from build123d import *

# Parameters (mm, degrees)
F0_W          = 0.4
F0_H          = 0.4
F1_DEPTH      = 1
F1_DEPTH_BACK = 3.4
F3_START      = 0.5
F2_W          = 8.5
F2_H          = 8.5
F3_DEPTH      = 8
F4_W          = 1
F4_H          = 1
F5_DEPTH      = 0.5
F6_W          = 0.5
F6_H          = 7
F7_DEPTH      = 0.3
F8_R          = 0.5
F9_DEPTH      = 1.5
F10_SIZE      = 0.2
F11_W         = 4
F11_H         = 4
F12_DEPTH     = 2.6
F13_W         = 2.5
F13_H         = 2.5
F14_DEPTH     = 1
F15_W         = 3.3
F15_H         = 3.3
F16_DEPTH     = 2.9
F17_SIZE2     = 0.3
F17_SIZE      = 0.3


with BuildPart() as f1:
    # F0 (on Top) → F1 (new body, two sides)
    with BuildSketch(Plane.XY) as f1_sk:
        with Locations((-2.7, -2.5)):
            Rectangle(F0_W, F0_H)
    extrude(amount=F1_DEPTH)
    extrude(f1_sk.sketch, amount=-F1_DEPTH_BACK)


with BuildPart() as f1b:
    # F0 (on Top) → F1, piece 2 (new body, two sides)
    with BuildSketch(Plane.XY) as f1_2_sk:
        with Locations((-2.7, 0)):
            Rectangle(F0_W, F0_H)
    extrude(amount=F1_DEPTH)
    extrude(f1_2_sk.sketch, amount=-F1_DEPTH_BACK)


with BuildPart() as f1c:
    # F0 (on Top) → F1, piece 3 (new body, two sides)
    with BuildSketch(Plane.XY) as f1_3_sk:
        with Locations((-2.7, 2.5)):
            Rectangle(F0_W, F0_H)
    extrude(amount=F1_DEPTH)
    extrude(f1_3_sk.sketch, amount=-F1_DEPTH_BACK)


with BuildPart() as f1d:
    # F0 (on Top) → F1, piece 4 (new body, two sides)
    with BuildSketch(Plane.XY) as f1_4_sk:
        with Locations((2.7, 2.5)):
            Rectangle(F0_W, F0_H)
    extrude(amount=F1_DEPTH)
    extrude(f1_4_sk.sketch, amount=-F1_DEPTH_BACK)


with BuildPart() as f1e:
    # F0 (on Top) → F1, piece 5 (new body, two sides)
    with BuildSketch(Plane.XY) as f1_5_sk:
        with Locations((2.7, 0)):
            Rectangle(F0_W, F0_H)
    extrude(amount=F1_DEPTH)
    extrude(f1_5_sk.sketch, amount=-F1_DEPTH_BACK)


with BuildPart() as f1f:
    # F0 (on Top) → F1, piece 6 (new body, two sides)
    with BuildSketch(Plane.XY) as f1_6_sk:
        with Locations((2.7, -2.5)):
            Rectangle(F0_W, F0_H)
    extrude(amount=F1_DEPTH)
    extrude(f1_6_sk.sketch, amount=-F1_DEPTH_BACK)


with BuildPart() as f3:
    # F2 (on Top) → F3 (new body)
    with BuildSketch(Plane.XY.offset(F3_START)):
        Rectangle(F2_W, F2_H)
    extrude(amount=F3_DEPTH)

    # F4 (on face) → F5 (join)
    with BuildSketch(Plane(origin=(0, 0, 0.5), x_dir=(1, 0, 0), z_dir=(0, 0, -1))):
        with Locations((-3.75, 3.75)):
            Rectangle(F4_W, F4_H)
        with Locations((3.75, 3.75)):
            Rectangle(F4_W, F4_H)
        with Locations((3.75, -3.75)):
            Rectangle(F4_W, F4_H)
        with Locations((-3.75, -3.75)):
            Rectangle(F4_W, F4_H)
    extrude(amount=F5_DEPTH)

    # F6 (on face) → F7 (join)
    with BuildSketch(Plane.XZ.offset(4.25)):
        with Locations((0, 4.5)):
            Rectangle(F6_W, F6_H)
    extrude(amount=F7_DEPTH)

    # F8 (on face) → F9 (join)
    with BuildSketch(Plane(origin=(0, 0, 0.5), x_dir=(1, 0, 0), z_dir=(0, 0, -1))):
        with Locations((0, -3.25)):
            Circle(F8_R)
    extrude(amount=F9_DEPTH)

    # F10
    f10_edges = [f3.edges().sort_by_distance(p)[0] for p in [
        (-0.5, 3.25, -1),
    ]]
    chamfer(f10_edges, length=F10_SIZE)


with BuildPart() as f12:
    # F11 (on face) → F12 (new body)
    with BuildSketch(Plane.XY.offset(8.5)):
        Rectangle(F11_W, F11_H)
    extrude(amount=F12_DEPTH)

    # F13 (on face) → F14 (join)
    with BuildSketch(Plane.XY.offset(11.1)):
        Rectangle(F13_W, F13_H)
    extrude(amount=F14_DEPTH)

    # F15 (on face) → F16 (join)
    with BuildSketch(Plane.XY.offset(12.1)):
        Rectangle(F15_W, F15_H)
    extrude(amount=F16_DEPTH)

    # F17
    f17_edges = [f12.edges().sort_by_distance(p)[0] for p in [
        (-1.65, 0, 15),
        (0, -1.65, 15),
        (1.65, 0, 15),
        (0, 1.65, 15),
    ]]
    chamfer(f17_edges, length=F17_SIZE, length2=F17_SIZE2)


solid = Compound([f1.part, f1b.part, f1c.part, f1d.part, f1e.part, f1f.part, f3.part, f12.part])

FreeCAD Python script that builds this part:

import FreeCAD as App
import Part
import Sketcher
from FreeCAD import Vector
Q = App.Units.Quantity


def edges_at(feature, points):
    """Names of the edges that pass closest to the given points."""
    edges = feature.Shape.Edges
    near = lambda p: min(range(len(edges)), key=lambda i: edges[i].distToShape(Part.Vertex(*p))[0])
    return sorted({f"Edge{near(p) + 1}" for p in points})


def add_polygon(sketch, points):
    """Adds a closed chain of lines whose ends are joined by coincident constraints."""
    first, n = sketch.GeometryCount, len(points)
    for a, b in zip(points, points[1:] + points[:1]):
        sketch.addGeometry(Part.LineSegment(App.Vector(*a, 0), App.Vector(*b, 0)), False)
    for i in range(n):
        sketch.addConstraint(Sketcher.Constraint("Coincident", first + i, 2, first + (i + 1) % n, 1))

doc = App.newDocument("Part")
params = doc.addObject("Spreadsheet::Sheet", "Params")
for row, (alias, value) in enumerate([
    ("sketch1_width", "0.4 mm"),
    ("pad1_length", "1 mm"),
    ("pad1_length2", "3.4 mm"),
    ("sketch2_width", "0.4 mm"),
    ("pad2_length", "1 mm"),
    ("pad2_length2", "3.4 mm"),
    ("sketch3_width", "0.4 mm"),
    ("pad3_length", "1 mm"),
    ("pad3_length2", "3.4 mm"),
    ("sketch4_width", "0.4 mm"),
    ("pad4_length", "1 mm"),
    ("pad4_length2", "3.4 mm"),
    ("sketch5_width", "0.4 mm"),
    ("pad5_length", "1 mm"),
    ("pad5_length2", "3.4 mm"),
    ("sketch6_width", "0.4 mm"),
    ("pad6_length", "1 mm"),
    ("pad6_length2", "3.4 mm"),
    ("sketch7_width", "8.5 mm"),
    ("pad7_length", "8 mm"),
    ("sketch8_width", "1 mm"),
    ("pad8_length", "0.5 mm"),
    ("sketch9_height", "7 mm"),
    ("sketch9_width", "0.5 mm"),
    ("pad9_length", "0.3 mm"),
    ("sketch10_diameter", "1 mm"),
    ("pad10_length", "1.5 mm"),
    ("chamfer_size", "0.2 mm"),
    ("sketch11_width", "4 mm"),
    ("pad11_length", "2.6 mm"),
    ("sketch12_width", "2.5 mm"),
    ("pad12_length", "1 mm"),
    ("sketch13_width", "3.3 mm"),
    ("pad13_length", "2.9 mm"),
    ("chamfer2_size", "0.3 mm"),
    ("chamfer2_size2", "0.3 mm"),
], start=1):
    params.set(f"A{row}", alias)
    params.set(f"B{row}", "=" + value)
    params.setAlias(f"B{row}", alias)

body = doc.addObject("PartDesign::Body", "Body")

# Sketch on XY plane
sketch1 = body.newObject("Sketcher::SketchObject", "Sketch")
sketch1.AttachmentSupport = (doc.getObject("XY_Plane"), [""])
sketch1.MapMode = "FlatFace"
add_polygon(sketch1, [(-2.9, -2.3), (-2.9, -2.7), (-2.5, -2.7), (-2.5, -2.3)])  # lines 0-3
sketch1.addConstraint([
    Sketcher.Constraint("Vertical", 0),
    Sketcher.Constraint("Horizontal", 1),
    Sketcher.Constraint("Vertical", 2),
    Sketcher.Constraint("Horizontal", 3),
    Sketcher.Constraint("Equal", 3, 0),
    Sketcher.Constraint("DistanceX", 1, 1, 1, 2, Q("0.4 mm")),
    Sketcher.Constraint("DistanceX", 0, 2, -1, 1, Q("2.9 mm")),
    Sketcher.Constraint("DistanceY", 0, 2, -1, 1, Q("2.7 mm")),
])
sketch1.setExpression("Constraints[9]", "Params.sketch1_width")
pad1 = body.newObject("PartDesign::Pad", "Pad")
pad1.Profile = sketch1
pad1.Type = "TwoLengths"
pad1.setExpression("Length", "Params.pad1_length")
pad1.setExpression("Length2", "Params.pad1_length2")
body2 = doc.addObject("PartDesign::Body", "Body001")

# Sketch on XY plane
sketch2 = body2.newObject("Sketcher::SketchObject", "Sketch001")
sketch2.AttachmentSupport = (doc.getObject("XY_Plane001"), [""])
sketch2.MapMode = "FlatFace"
add_polygon(sketch2, [(-2.9, 0.2), (-2.9, -0.2), (-2.5, -0.2), (-2.5, 0.2)])  # lines 0-3
sketch2.addConstraint([
    Sketcher.Constraint("Vertical", 0),
    Sketcher.Constraint("Horizontal", 1),
    Sketcher.Constraint("Vertical", 2),
    Sketcher.Constraint("Horizontal", 3),
    Sketcher.Constraint("Equal", 3, 0),
    Sketcher.Constraint("DistanceX", 1, 1, 1, 2, Q("0.4 mm")),
    Sketcher.Constraint("DistanceX", 0, 2, -1, 1, Q("2.9 mm")),
    Sketcher.Constraint("DistanceY", 0, 2, -1, 1, Q("0.2 mm")),
])
sketch2.setExpression("Constraints[9]", "Params.sketch2_width")
pad2 = body2.newObject("PartDesign::Pad", "Pad001")
pad2.Profile = sketch2
pad2.Type = "TwoLengths"
pad2.setExpression("Length", "Params.pad2_length")
pad2.setExpression("Length2", "Params.pad2_length2")
body3 = doc.addObject("PartDesign::Body", "Body002")

# Sketch on XY plane
sketch3 = body3.newObject("Sketcher::SketchObject", "Sketch002")
sketch3.AttachmentSupport = (doc.getObject("XY_Plane002"), [""])
sketch3.MapMode = "FlatFace"
add_polygon(sketch3, [(-2.9, 2.7), (-2.9, 2.3), (-2.5, 2.3), (-2.5, 2.7)])  # lines 0-3
sketch3.addConstraint([
    Sketcher.Constraint("Vertical", 0),
    Sketcher.Constraint("Horizontal", 1),
    Sketcher.Constraint("Vertical", 2),
    Sketcher.Constraint("Horizontal", 3),
    Sketcher.Constraint("Equal", 3, 0),
    Sketcher.Constraint("DistanceX", 1, 1, 1, 2, Q("0.4 mm")),
    Sketcher.Constraint("DistanceX", 0, 2, -1, 1, Q("2.9 mm")),
    Sketcher.Constraint("DistanceY", -1, 1, 0, 2, Q("2.3 mm")),
])
sketch3.setExpression("Constraints[9]", "Params.sketch3_width")
pad3 = body3.newObject("PartDesign::Pad", "Pad002")
pad3.Profile = sketch3
pad3.Type = "TwoLengths"
pad3.setExpression("Length", "Params.pad3_length")
pad3.setExpression("Length2", "Params.pad3_length2")
body4 = doc.addObject("PartDesign::Body", "Body003")

# Sketch on XY plane
sketch4 = body4.newObject("Sketcher::SketchObject", "Sketch003")
sketch4.AttachmentSupport = (doc.getObject("XY_Plane003"), [""])
sketch4.MapMode = "FlatFace"
add_polygon(sketch4, [(2.5, 2.7), (2.5, 2.3), (2.9, 2.3), (2.9, 2.7)])  # lines 0-3
sketch4.addConstraint([
    Sketcher.Constraint("Vertical", 0),
    Sketcher.Constraint("Horizontal", 1),
    Sketcher.Constraint("Vertical", 2),
    Sketcher.Constraint("Horizontal", 3),
    Sketcher.Constraint("Equal", 3, 0),
    Sketcher.Constraint("DistanceX", 1, 1, 1, 2, Q("0.4 mm")),
    Sketcher.Constraint("DistanceX", -1, 1, 0, 2, Q("2.5 mm")),
    Sketcher.Constraint("DistanceY", -1, 1, 0, 2, Q("2.3 mm")),
])
sketch4.setExpression("Constraints[9]", "Params.sketch4_width")
pad4 = body4.newObject("PartDesign::Pad", "Pad003")
pad4.Profile = sketch4
pad4.Type = "TwoLengths"
pad4.setExpression("Length", "Params.pad4_length")
pad4.setExpression("Length2", "Params.pad4_length2")
body5 = doc.addObject("PartDesign::Body", "Body004")

# Sketch on XY plane
sketch5 = body5.newObject("Sketcher::SketchObject", "Sketch004")
sketch5.AttachmentSupport = (doc.getObject("XY_Plane004"), [""])
sketch5.MapMode = "FlatFace"
add_polygon(sketch5, [(2.5, 0.2), (2.5, -0.2), (2.9, -0.2), (2.9, 0.2)])  # lines 0-3
sketch5.addConstraint([
    Sketcher.Constraint("Vertical", 0),
    Sketcher.Constraint("Horizontal", 1),
    Sketcher.Constraint("Vertical", 2),
    Sketcher.Constraint("Horizontal", 3),
    Sketcher.Constraint("Equal", 3, 0),
    Sketcher.Constraint("DistanceX", 1, 1, 1, 2, Q("0.4 mm")),
    Sketcher.Constraint("DistanceX", -1, 1, 0, 2, Q("2.5 mm")),
    Sketcher.Constraint("DistanceY", 0, 2, -1, 1, Q("0.2 mm")),
])
sketch5.setExpression("Constraints[9]", "Params.sketch5_width")
pad5 = body5.newObject("PartDesign::Pad", "Pad004")
pad5.Profile = sketch5
pad5.Type = "TwoLengths"
pad5.setExpression("Length", "Params.pad5_length")
pad5.setExpression("Length2", "Params.pad5_length2")
body6 = doc.addObject("PartDesign::Body", "Body005")

# Sketch on XY plane
sketch6 = body6.newObject("Sketcher::SketchObject", "Sketch005")
sketch6.AttachmentSupport = (doc.getObject("XY_Plane005"), [""])
sketch6.MapMode = "FlatFace"
add_polygon(sketch6, [(2.5, -2.3), (2.5, -2.7), (2.9, -2.7), (2.9, -2.3)])  # lines 0-3
sketch6.addConstraint([
    Sketcher.Constraint("Vertical", 0),
    Sketcher.Constraint("Horizontal", 1),
    Sketcher.Constraint("Vertical", 2),
    Sketcher.Constraint("Horizontal", 3),
    Sketcher.Constraint("Equal", 3, 0),
    Sketcher.Constraint("DistanceX", 1, 1, 1, 2, Q("0.4 mm")),
    Sketcher.Constraint("DistanceX", -1, 1, 0, 2, Q("2.5 mm")),
    Sketcher.Constraint("DistanceY", 0, 2, -1, 1, Q("2.7 mm")),
])
sketch6.setExpression("Constraints[9]", "Params.sketch6_width")
pad6 = body6.newObject("PartDesign::Pad", "Pad005")
pad6.Profile = sketch6
pad6.Type = "TwoLengths"
pad6.setExpression("Length", "Params.pad6_length")
pad6.setExpression("Length2", "Params.pad6_length2")
body7 = doc.addObject("PartDesign::Body", "Body006")

# Sketch on XY plane
sketch7 = body7.newObject("Sketcher::SketchObject", "Sketch006")
sketch7.AttachmentSupport = (doc.getObject("XY_Plane006"), [""])
sketch7.MapMode = "FlatFace"
sketch7.AttachmentOffset = App.Placement(Vector(0, 0, 0.5), App.Rotation())
add_polygon(sketch7, [(-4, 4), (-4, -4), (4, -4), (4, 4)])  # lines 0-3
sketch7.addConstraint([
    Sketcher.Constraint("Vertical", 0),
    Sketcher.Constraint("Horizontal", 1),
    Sketcher.Constraint("Vertical", 2),
    Sketcher.Constraint("Horizontal", 3),
    Sketcher.Constraint("Symmetric", 0, 2, 2, 2, -1, 1),
    Sketcher.Constraint("Equal", 3, 0),
    Sketcher.Constraint("DistanceX", 1, 1, 1, 2, Q("8.5 mm")),
])
sketch7.setExpression("Constraints[10]", "Params.sketch7_width")
pad7 = body7.newObject("PartDesign::Pad", "Pad006")
pad7.Profile = sketch7
pad7.setExpression("Length", "Params.pad7_length")

# Sketch on XY plane
sketch8 = body7.newObject("Sketcher::SketchObject", "Sketch007")
sketch8.AttachmentSupport = (doc.getObject("XY_Plane006"), [""])
sketch8.MapMode = "FlatFace"
sketch8.AttachmentOffset = App.Placement(Vector(0, 0, 0.5), App.Rotation())
add_polygon(sketch8, [(-4.2, -4.2), (-4.2, -3.2), (-3.2, -3.2), (-3.2, -4.2)])  # lines 0-3
add_polygon(sketch8, [(3.2, -4.2), (3.2, -3.2), (4.2, -3.2), (4.2, -4.2)])  # lines 4-7
add_polygon(sketch8, [(3.2, 3.2), (3.2, 4.2), (4.2, 4.2), (4.2, 3.2)])  # lines 8-11
add_polygon(sketch8, [(-4.2, 3.2), (-4.2, 4.2), (-3.2, 4.2), (-3.2, 3.2)])  # lines 12-15
sketch8.addConstraint([
    Sketcher.Constraint("Vertical", 0),
    Sketcher.Constraint("Horizontal", 1),
    Sketcher.Constraint("Vertical", 2),
    Sketcher.Constraint("Horizontal", 3),
    Sketcher.Constraint("Vertical", 4),
    Sketcher.Constraint("Horizontal", 5),
    Sketcher.Constraint("Vertical", 6),
    Sketcher.Constraint("Horizontal", 7),
    Sketcher.Constraint("Vertical", 8),
    Sketcher.Constraint("Horizontal", 9),
    Sketcher.Constraint("Vertical", 10),
    Sketcher.Constraint("Horizontal", 11),
    Sketcher.Constraint("Vertical", 12),
    Sketcher.Constraint("Horizontal", 13),
    Sketcher.Constraint("Vertical", 14),
    Sketcher.Constraint("Horizontal", 15),
    Sketcher.Constraint("Symmetric", 2, 2, 8, 2, -1, 1),
    Sketcher.Constraint("Symmetric", 0, 2, 10, 2, -1, 1),
    Sketcher.Constraint("Symmetric", 6, 2, 12, 2, -1, 1),
    Sketcher.Constraint("Symmetric", 4, 2, 14, 2, -1, 1),
    Sketcher.Constraint("Symmetric", 1, 2, 4, 2, -2),
    Sketcher.Constraint("Symmetric", 3, 2, 6, 2, -2),
    Sketcher.Constraint("Equal", 15, 0),
    Sketcher.Constraint("DistanceX", 1, 1, 1, 2, Q("1 mm")),
    Sketcher.Constraint("DistanceX", 1, 2, 4, 2, Q("6.5 mm")),
    Sketcher.Constraint("DistanceY", 4, 2, 8, 2, Q("7.5 mm")),
])
sketch8.setExpression("Constraints[39]", "Params.sketch8_width")
pad8 = body7.newObject("PartDesign::Pad", "Pad007")
pad8.Profile = sketch8
pad8.setExpression("Length", "Params.pad8_length")
pad8.Reversed = True

# Sketch on XZ plane
sketch9 = body7.newObject("Sketcher::SketchObject", "Sketch008")
sketch9.AttachmentSupport = (doc.getObject("XZ_Plane006"), [""])
sketch9.MapMode = "FlatFace"
sketch9.AttachmentOffset = App.Placement(Vector(0, 0, 4.25), App.Rotation())
add_polygon(sketch9, [(-0.2, 8), (-0.2, 1), (0.2, 1), (0.2, 8)])  # lines 0-3
sketch9.addConstraint([
    Sketcher.Constraint("Vertical", 0),
    Sketcher.Constraint("Horizontal", 1),
    Sketcher.Constraint("Vertical", 2),
    Sketcher.Constraint("Horizontal", 3),
    Sketcher.Constraint("DistanceY", 0, 2, 0, 1, Q("7 mm")),
    Sketcher.Constraint("DistanceX", 1, 1, 1, 2, Q("0.5 mm")),
    Sketcher.Constraint("DistanceY", -1, 1, 0, 2, Q("1 mm")),
    Sketcher.Constraint("DistanceX", 0, 2, -1, 1, Q("0.25 mm")),
])
sketch9.setExpression("Constraints[8]", "Params.sketch9_height")
sketch9.setExpression("Constraints[9]", "Params.sketch9_width")
pad9 = body7.newObject("PartDesign::Pad", "Pad008")
pad9.Profile = sketch9
pad9.setExpression("Length", "Params.pad9_length")

# Sketch on XY plane
sketch10 = body7.newObject("Sketcher::SketchObject", "Sketch009")
sketch10.AttachmentSupport = (doc.getObject("XY_Plane006"), [""])
sketch10.MapMode = "FlatFace"
sketch10.AttachmentOffset = App.Placement(Vector(0, 0, 0.5), App.Rotation())
sketch10.addGeometry(Part.Circle(Vector(0, 3.2, 0), Vector(0, 0, 1), 0.5), False)
sketch10.addConstraint([
    Sketcher.Constraint("PointOnObject", 0, 3, -2),
    Sketcher.Constraint("Diameter", 0, Q("1 mm")),
    Sketcher.Constraint("DistanceY", -1, 1, 0, 3, Q("3.25 mm")),
])
sketch10.setExpression("Constraints[1]", "Params.sketch10_diameter")
pad10 = body7.newObject("PartDesign::Pad", "Pad009")
pad10.Profile = sketch10
pad10.setExpression("Length", "Params.pad10_length")
pad10.Reversed = True
doc.recompute()

chamfer = body7.newObject("PartDesign::Chamfer", "Chamfer")
chamfer.Base = (pad10, edges_at(pad10, [(-0.5, 3.25, -1)]))
chamfer.setExpression("Size", "Params.chamfer_size")
body8 = doc.addObject("PartDesign::Body", "Body007")

# Sketch on XY plane
sketch11 = body8.newObject("Sketcher::SketchObject", "Sketch010")
sketch11.AttachmentSupport = (doc.getObject("XY_Plane007"), [""])
sketch11.MapMode = "FlatFace"
sketch11.AttachmentOffset = App.Placement(Vector(0, 0, 8.5), App.Rotation())
add_polygon(sketch11, [(-2, 2), (-2, -2), (2, -2), (2, 2)])  # lines 0-3
sketch11.addConstraint([
    Sketcher.Constraint("Vertical", 0),
    Sketcher.Constraint("Horizontal", 1),
    Sketcher.Constraint("Vertical", 2),
    Sketcher.Constraint("Horizontal", 3),
    Sketcher.Constraint("Symmetric", 0, 2, 2, 2, -1, 1),
    Sketcher.Constraint("Equal", 3, 0),
    Sketcher.Constraint("DistanceX", 1, 1, 1, 2, Q("4 mm")),
])
sketch11.setExpression("Constraints[10]", "Params.sketch11_width")
pad11 = body8.newObject("PartDesign::Pad", "Pad010")
pad11.Profile = sketch11
pad11.setExpression("Length", "Params.pad11_length")

# Sketch on XY plane
sketch12 = body8.newObject("Sketcher::SketchObject", "Sketch011")
sketch12.AttachmentSupport = (doc.getObject("XY_Plane007"), [""])
sketch12.MapMode = "FlatFace"
sketch12.AttachmentOffset = App.Placement(Vector(0, 0, 11.1), App.Rotation())
add_polygon(sketch12, [(-1.2, 1.2), (-1.2, -1.2), (1.2, -1.2), (1.2, 1.2)])  # lines 0-3
sketch12.addConstraint([
    Sketcher.Constraint("Vertical", 0),
    Sketcher.Constraint("Horizontal", 1),
    Sketcher.Constraint("Vertical", 2),
    Sketcher.Constraint("Horizontal", 3),
    Sketcher.Constraint("Symmetric", 0, 2, 2, 2, -1, 1),
    Sketcher.Constraint("Equal", 3, 0),
    Sketcher.Constraint("DistanceX", 1, 1, 1, 2, Q("2.5 mm")),
])
sketch12.setExpression("Constraints[10]", "Params.sketch12_width")
pad12 = body8.newObject("PartDesign::Pad", "Pad011")
pad12.Profile = sketch12
pad12.setExpression("Length", "Params.pad12_length")

# Sketch on XY plane
sketch13 = body8.newObject("Sketcher::SketchObject", "Sketch012")
sketch13.AttachmentSupport = (doc.getObject("XY_Plane007"), [""])
sketch13.MapMode = "FlatFace"
sketch13.AttachmentOffset = App.Placement(Vector(0, 0, 12.1), App.Rotation())
add_polygon(sketch13, [(-1.6, 1.6), (-1.6, -1.6), (1.6, -1.6), (1.6, 1.6)])  # lines 0-3
sketch13.addConstraint([
    Sketcher.Constraint("Vertical", 0),
    Sketcher.Constraint("Horizontal", 1),
    Sketcher.Constraint("Vertical", 2),
    Sketcher.Constraint("Horizontal", 3),
    Sketcher.Constraint("Symmetric", 0, 2, 2, 2, -1, 1),
    Sketcher.Constraint("Equal", 3, 0),
    Sketcher.Constraint("DistanceX", 1, 1, 1, 2, Q("3.3 mm")),
])
sketch13.setExpression("Constraints[10]", "Params.sketch13_width")
pad13 = body8.newObject("PartDesign::Pad", "Pad012")
pad13.Profile = sketch13
pad13.setExpression("Length", "Params.pad13_length")
doc.recompute()

chamfer2 = body8.newObject("PartDesign::Chamfer", "Chamfer001")
chamfer2.Base = (pad13, edges_at(pad13, [
    (-1.65, 0, 15),
    (0, -1.65, 15),
    (1.65, 0, 15),
    (0, 1.65, 15),
]))
chamfer2.ChamferType = "Two distances"
chamfer2.setExpression("Size", "Params.chamfer2_size")
chamfer2.setExpression("Size2", "Params.chamfer2_size2")

doc.recompute()
